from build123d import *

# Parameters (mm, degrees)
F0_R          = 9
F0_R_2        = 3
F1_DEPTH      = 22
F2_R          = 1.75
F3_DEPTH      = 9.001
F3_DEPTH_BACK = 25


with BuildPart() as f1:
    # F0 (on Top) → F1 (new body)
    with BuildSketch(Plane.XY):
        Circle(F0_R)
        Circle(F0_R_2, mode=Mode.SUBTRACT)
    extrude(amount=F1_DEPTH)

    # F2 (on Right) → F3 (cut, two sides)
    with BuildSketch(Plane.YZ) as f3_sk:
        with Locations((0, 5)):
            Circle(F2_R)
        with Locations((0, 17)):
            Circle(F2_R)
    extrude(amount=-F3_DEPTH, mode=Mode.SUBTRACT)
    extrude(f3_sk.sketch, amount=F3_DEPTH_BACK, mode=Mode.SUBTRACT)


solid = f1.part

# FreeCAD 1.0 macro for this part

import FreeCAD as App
import Part
import Sketcher
from FreeCAD import Vector
Q = App.Units.Quantity

doc = App.newDocument("Part")
body = doc.addObject("PartDesign::Body", "Body")

# Sketch on XY plane
sketch1 = body.newObject("Sketcher::SketchObject", "Sketch")
sketch1.AttachmentSupport = (doc.getObject("XY_Plane"), [""])
sketch1.MapMode = "FlatFace"
sketch1.addGeometry([
    Part.Circle(Vector(0, 0, 0), Vector(0, 0, 1), 9),
    Part.Circle(Vector(0, 0, 0), Vector(0, 0, 1), 3),
], False)
sketch1.addConstraint([
    Sketcher.Constraint("Coincident", 0, 3, -1, 1),
    Sketcher.Constraint("Coincident", 1, 3, -1, 1),
    Sketcher.Constraint("Diameter", 0, Q("18 mm")),
    Sketcher.Constraint("Diameter", 1, Q("6 mm")),
])
pad1 = body.newObject("PartDesign::Pad", "Pad")
pad1.Profile = sketch1
pad1.Length = 22

# Sketch on YZ plane
sketch2 = body.newObject("Sketcher::SketchObject", "Sketch001")
sketch2.AttachmentSupport = (doc.getObject("YZ_Plane"), [""])
sketch2.MapMode = "FlatFace"
sketch2.addGeometry([
    Part.Circle(Vector(0, 5, 0), Vector(0, 0, 1), 1.8),
    Part.Circle(Vector(0, 17, 0), Vector(0, 0, 1), 1.8),
], False)
sketch2.addConstraint([
    Sketcher.Constraint("Equal", 0, 1),
    Sketcher.Constraint("PointOnObject", 0, 3, -2),
    Sketcher.Constraint("PointOnObject", 1, 3, -2),
    Sketcher.Constraint("Diameter", 0, Q("3.5 mm")),
    Sketcher.Constraint("DistanceY", -1, 1, 0, 3, Q("5 mm")),
    Sketcher.Constraint("DistanceY", -1, 1, 1, 3, Q("17 mm")),
])
pocket1 = body.newObject("PartDesign::Pocket", "Pocket")
pocket1.Profile = sketch2
pocket1.Type = "ThroughAll"
pocket1.Midplane = True

doc.recompute()
